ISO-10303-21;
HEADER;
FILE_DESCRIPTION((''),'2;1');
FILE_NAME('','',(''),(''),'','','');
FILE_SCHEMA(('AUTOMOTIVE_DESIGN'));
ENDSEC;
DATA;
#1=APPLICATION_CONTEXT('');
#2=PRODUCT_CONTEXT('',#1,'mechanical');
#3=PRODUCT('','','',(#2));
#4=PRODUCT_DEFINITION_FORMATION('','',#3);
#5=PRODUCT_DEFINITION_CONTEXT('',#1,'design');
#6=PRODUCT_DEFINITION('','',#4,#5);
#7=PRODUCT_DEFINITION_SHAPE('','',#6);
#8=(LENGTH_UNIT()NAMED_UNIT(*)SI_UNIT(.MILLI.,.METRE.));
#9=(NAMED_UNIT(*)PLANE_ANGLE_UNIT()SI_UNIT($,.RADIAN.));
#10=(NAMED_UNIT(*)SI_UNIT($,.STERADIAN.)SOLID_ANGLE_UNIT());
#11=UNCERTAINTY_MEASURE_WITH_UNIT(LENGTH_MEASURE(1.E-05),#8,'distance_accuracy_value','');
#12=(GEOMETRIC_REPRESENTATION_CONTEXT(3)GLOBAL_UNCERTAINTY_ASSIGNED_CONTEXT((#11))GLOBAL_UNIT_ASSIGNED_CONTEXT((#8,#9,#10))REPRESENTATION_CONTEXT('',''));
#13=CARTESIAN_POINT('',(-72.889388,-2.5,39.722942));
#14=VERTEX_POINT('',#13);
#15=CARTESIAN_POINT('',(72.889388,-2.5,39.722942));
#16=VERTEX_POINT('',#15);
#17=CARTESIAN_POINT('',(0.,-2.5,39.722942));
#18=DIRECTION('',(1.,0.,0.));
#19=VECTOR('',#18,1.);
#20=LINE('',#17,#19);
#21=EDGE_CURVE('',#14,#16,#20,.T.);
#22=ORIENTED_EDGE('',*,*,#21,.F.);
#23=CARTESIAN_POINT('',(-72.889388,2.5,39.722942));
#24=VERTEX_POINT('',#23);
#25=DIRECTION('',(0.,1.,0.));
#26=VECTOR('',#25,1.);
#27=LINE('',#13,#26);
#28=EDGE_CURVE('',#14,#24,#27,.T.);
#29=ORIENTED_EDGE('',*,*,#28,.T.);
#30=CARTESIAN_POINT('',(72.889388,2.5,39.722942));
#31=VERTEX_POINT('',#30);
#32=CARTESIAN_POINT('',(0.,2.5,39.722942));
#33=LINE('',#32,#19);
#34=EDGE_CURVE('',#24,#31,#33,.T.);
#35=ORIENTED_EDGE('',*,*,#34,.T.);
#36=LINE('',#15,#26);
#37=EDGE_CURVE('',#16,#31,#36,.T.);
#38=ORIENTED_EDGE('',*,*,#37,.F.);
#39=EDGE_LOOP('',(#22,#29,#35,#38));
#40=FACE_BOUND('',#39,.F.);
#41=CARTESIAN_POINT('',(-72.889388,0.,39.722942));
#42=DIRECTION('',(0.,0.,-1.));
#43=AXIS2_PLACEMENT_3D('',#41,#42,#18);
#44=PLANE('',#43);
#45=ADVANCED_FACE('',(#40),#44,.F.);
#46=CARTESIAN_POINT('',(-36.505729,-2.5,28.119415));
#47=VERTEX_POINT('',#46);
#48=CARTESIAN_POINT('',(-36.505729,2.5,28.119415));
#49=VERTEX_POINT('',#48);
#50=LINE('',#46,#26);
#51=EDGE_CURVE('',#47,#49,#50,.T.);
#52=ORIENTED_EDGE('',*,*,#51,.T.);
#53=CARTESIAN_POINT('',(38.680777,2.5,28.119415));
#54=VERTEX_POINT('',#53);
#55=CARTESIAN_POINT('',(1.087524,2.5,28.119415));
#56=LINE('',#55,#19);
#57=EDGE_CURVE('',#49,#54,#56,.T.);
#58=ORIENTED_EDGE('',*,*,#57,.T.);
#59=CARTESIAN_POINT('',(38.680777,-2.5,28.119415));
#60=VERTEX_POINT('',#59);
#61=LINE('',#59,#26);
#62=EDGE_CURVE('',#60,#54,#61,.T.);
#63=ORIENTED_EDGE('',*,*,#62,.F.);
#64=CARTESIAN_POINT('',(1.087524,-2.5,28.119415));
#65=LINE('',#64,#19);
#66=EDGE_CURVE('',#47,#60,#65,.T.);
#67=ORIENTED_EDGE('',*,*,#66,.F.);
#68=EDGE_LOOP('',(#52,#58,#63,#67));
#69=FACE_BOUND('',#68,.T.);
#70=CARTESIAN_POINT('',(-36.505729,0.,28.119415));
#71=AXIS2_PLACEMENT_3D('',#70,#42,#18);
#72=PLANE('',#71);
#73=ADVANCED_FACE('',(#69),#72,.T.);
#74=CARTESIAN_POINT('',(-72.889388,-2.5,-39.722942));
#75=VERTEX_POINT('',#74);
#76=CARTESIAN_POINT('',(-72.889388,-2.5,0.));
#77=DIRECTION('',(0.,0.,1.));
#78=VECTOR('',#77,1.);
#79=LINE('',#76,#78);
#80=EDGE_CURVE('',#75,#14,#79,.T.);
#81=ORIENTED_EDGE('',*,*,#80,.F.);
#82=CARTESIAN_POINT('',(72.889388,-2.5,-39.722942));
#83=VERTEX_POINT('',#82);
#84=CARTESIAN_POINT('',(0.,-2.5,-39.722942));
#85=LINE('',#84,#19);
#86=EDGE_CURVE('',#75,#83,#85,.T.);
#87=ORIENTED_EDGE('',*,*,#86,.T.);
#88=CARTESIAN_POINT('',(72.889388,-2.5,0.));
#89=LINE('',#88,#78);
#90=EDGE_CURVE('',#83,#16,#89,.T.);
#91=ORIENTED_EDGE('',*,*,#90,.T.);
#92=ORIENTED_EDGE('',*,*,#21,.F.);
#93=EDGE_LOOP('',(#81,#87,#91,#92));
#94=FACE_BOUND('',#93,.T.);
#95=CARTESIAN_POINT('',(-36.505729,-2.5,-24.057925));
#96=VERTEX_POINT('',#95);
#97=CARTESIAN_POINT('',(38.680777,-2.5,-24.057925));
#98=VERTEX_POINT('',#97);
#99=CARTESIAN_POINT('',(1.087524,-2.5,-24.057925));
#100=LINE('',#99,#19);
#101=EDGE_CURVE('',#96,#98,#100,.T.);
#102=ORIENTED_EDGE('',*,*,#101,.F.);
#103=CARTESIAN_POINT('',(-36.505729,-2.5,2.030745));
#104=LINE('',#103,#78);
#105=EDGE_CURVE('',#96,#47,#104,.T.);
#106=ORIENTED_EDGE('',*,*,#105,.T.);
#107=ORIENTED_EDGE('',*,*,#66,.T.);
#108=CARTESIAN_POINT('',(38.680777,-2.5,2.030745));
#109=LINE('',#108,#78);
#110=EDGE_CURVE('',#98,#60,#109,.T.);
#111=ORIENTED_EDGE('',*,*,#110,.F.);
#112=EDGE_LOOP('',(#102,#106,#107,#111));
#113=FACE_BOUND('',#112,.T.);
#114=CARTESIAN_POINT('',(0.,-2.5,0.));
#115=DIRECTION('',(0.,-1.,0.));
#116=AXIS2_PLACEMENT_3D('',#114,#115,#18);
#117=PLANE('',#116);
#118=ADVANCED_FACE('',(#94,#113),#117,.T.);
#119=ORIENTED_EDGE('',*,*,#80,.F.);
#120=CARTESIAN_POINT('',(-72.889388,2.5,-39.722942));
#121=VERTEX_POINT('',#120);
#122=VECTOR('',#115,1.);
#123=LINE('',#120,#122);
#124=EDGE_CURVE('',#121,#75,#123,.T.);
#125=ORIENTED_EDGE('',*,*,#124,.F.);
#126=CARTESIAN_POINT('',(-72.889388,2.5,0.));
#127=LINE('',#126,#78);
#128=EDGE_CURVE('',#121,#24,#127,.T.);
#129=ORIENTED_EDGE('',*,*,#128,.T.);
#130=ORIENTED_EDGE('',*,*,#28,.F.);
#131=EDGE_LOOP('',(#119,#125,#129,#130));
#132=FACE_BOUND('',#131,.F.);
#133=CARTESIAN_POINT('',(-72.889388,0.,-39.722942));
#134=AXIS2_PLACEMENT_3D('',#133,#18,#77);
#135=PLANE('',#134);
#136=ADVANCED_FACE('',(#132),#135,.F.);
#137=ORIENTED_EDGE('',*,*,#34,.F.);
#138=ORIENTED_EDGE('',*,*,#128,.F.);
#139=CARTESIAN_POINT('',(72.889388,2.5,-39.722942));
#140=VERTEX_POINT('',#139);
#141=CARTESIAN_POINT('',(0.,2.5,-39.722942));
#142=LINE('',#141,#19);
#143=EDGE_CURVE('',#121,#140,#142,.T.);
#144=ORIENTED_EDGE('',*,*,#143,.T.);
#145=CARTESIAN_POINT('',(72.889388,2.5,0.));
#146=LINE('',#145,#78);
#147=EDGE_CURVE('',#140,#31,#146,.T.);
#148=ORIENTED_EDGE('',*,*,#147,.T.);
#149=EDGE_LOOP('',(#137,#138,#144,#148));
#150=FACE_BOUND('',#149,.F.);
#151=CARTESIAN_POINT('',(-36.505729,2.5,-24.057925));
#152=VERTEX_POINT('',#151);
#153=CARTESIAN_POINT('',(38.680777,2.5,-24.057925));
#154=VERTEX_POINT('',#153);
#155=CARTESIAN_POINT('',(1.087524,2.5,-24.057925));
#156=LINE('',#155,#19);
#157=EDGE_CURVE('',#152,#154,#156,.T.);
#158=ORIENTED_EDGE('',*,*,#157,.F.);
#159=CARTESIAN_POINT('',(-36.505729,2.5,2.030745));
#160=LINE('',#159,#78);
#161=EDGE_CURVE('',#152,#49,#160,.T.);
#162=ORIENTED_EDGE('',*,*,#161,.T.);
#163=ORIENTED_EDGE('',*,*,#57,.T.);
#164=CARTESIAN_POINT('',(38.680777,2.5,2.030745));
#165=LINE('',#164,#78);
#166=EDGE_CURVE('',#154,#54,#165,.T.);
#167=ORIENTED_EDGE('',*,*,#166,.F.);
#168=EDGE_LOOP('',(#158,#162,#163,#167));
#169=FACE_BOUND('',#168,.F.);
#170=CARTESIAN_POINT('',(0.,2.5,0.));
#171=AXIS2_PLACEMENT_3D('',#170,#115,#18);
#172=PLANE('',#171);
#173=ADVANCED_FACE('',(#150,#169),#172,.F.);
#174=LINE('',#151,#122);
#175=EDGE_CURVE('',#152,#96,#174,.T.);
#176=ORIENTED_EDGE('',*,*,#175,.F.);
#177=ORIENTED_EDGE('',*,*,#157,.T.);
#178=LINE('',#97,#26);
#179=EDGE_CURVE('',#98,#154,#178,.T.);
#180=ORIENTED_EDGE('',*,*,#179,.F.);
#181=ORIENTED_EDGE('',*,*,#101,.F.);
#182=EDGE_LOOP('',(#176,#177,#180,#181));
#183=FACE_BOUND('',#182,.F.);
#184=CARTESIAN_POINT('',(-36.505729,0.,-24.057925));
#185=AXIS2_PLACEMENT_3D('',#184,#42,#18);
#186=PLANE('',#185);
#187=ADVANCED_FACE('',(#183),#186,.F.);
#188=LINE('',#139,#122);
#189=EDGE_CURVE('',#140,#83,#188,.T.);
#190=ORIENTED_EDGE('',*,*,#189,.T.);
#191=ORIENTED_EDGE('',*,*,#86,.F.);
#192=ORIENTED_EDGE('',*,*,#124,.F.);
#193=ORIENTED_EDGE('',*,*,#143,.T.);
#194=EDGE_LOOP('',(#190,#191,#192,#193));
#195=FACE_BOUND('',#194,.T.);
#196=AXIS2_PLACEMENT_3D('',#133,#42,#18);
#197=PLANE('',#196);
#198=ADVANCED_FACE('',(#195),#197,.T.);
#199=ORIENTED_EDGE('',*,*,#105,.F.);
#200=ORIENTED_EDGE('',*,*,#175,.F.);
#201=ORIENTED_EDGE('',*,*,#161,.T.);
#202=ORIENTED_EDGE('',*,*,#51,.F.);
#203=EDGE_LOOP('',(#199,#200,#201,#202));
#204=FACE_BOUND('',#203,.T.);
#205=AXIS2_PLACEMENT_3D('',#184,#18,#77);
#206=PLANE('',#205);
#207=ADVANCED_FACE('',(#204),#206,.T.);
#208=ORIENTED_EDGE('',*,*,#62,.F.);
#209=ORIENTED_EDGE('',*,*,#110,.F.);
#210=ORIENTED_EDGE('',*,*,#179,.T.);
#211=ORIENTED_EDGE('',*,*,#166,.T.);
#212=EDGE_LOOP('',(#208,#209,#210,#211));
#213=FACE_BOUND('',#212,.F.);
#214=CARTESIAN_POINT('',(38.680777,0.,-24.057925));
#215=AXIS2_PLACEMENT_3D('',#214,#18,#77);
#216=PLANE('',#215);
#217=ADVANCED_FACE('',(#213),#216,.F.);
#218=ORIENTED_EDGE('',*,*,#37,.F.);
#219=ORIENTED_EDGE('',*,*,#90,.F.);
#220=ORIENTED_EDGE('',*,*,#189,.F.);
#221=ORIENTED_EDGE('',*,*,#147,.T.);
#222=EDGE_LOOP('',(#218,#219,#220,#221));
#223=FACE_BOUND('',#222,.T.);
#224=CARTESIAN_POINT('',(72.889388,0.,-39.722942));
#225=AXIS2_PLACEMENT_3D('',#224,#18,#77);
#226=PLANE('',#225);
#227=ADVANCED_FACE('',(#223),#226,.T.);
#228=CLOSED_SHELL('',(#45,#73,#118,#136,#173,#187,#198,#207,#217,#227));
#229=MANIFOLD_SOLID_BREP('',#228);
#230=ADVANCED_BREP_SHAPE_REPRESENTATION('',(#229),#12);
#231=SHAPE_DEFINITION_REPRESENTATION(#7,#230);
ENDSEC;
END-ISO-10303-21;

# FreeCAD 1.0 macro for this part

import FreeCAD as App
import Part
import Sketcher

V = App.Vector

doc = App.newDocument("Part")
body = doc.addObject("PartDesign::Body", "Body")

# Sketch on XZ plane
sketch1 = body.newObject("Sketcher::SketchObject", "Sketch")
sketch1.AttachmentSupport = (doc.getObject("XZ_Plane"), [""])
sketch1.MapMode = "FlatFace"
sketch1.addGeometry([
    Part.LineSegment(V(-72.889388, 39.722942, 0), V(-72.889388, -39.722942, 0)),  # 0
    Part.LineSegment(V(-72.889388, -39.722942, 0), V(72.889388, -39.722942, 0)),  # 1
    Part.LineSegment(V(72.889388, -39.722942, 0), V(72.889388, 39.722942, 0)),  # 2
    Part.LineSegment(V(72.889388, 39.722942, 0), V(-72.889388, 39.722942, 0)),  # 3
    Part.LineSegment(V(38.680777, -24.057925, 0), V(-36.505729, -24.057925, 0)),  # 4
    Part.LineSegment(V(-36.505729, -24.057925, 0), V(-36.505729, 28.119415, 0)),  # 5
    Part.LineSegment(V(-36.505729, 28.119415, 0), V(38.680777, 28.119415, 0)),  # 6
    Part.LineSegment(V(38.680777, 28.119415, 0), V(38.680777, -24.057925, 0)),  # 7
], False)
sketch1.addConstraint([
    Sketcher.Constraint("Coincident", 0, 2, 1, 1),
    Sketcher.Constraint("Coincident", 1, 2, 2, 1),
    Sketcher.Constraint("Coincident", 2, 2, 3, 1),
    Sketcher.Constraint("Coincident", 3, 2, 0, 1),
    Sketcher.Constraint("Coincident", 4, 2, 5, 1),
    Sketcher.Constraint("Coincident", 5, 2, 6, 1),
    Sketcher.Constraint("Coincident", 6, 2, 7, 1),
    Sketcher.Constraint("Coincident", 7, 2, 4, 1),
    Sketcher.Constraint("Vertical", 0),
    Sketcher.Constraint("Horizontal", 1),
    Sketcher.Constraint("Vertical", 2),
    Sketcher.Constraint("Horizontal", 3),
    Sketcher.Constraint("Horizontal", 4),
    Sketcher.Constraint("Vertical", 5),
    Sketcher.Constraint("Horizontal", 6),
    Sketcher.Constraint("Vertical", 7),
    Sketcher.Constraint("Symmetric", 0, 2, 2, 2, -1, 1),
    Sketcher.Constraint("DistanceY", 5, 1, 5, 2, 52.17734),
    Sketcher.Constraint("DistanceX", 1, 1, 1, 2, 145.778776),
    Sketcher.Constraint("DistanceX", 4, 2, 4, 1, 75.186506),
    Sketcher.Constraint("DistanceY", 0, 2, 0, 1, 79.445884),
    Sketcher.Constraint("DistanceX", 4, 2, -1, 1, 36.505729),
    Sketcher.Constraint("DistanceY", 4, 2, -1, 1, 24.057925),
])
pad1 = body.newObject("PartDesign::Pad", "Pad")
pad1.Profile = sketch1
pad1.Length = 5
pad1.Midplane = True

doc.recompute()
